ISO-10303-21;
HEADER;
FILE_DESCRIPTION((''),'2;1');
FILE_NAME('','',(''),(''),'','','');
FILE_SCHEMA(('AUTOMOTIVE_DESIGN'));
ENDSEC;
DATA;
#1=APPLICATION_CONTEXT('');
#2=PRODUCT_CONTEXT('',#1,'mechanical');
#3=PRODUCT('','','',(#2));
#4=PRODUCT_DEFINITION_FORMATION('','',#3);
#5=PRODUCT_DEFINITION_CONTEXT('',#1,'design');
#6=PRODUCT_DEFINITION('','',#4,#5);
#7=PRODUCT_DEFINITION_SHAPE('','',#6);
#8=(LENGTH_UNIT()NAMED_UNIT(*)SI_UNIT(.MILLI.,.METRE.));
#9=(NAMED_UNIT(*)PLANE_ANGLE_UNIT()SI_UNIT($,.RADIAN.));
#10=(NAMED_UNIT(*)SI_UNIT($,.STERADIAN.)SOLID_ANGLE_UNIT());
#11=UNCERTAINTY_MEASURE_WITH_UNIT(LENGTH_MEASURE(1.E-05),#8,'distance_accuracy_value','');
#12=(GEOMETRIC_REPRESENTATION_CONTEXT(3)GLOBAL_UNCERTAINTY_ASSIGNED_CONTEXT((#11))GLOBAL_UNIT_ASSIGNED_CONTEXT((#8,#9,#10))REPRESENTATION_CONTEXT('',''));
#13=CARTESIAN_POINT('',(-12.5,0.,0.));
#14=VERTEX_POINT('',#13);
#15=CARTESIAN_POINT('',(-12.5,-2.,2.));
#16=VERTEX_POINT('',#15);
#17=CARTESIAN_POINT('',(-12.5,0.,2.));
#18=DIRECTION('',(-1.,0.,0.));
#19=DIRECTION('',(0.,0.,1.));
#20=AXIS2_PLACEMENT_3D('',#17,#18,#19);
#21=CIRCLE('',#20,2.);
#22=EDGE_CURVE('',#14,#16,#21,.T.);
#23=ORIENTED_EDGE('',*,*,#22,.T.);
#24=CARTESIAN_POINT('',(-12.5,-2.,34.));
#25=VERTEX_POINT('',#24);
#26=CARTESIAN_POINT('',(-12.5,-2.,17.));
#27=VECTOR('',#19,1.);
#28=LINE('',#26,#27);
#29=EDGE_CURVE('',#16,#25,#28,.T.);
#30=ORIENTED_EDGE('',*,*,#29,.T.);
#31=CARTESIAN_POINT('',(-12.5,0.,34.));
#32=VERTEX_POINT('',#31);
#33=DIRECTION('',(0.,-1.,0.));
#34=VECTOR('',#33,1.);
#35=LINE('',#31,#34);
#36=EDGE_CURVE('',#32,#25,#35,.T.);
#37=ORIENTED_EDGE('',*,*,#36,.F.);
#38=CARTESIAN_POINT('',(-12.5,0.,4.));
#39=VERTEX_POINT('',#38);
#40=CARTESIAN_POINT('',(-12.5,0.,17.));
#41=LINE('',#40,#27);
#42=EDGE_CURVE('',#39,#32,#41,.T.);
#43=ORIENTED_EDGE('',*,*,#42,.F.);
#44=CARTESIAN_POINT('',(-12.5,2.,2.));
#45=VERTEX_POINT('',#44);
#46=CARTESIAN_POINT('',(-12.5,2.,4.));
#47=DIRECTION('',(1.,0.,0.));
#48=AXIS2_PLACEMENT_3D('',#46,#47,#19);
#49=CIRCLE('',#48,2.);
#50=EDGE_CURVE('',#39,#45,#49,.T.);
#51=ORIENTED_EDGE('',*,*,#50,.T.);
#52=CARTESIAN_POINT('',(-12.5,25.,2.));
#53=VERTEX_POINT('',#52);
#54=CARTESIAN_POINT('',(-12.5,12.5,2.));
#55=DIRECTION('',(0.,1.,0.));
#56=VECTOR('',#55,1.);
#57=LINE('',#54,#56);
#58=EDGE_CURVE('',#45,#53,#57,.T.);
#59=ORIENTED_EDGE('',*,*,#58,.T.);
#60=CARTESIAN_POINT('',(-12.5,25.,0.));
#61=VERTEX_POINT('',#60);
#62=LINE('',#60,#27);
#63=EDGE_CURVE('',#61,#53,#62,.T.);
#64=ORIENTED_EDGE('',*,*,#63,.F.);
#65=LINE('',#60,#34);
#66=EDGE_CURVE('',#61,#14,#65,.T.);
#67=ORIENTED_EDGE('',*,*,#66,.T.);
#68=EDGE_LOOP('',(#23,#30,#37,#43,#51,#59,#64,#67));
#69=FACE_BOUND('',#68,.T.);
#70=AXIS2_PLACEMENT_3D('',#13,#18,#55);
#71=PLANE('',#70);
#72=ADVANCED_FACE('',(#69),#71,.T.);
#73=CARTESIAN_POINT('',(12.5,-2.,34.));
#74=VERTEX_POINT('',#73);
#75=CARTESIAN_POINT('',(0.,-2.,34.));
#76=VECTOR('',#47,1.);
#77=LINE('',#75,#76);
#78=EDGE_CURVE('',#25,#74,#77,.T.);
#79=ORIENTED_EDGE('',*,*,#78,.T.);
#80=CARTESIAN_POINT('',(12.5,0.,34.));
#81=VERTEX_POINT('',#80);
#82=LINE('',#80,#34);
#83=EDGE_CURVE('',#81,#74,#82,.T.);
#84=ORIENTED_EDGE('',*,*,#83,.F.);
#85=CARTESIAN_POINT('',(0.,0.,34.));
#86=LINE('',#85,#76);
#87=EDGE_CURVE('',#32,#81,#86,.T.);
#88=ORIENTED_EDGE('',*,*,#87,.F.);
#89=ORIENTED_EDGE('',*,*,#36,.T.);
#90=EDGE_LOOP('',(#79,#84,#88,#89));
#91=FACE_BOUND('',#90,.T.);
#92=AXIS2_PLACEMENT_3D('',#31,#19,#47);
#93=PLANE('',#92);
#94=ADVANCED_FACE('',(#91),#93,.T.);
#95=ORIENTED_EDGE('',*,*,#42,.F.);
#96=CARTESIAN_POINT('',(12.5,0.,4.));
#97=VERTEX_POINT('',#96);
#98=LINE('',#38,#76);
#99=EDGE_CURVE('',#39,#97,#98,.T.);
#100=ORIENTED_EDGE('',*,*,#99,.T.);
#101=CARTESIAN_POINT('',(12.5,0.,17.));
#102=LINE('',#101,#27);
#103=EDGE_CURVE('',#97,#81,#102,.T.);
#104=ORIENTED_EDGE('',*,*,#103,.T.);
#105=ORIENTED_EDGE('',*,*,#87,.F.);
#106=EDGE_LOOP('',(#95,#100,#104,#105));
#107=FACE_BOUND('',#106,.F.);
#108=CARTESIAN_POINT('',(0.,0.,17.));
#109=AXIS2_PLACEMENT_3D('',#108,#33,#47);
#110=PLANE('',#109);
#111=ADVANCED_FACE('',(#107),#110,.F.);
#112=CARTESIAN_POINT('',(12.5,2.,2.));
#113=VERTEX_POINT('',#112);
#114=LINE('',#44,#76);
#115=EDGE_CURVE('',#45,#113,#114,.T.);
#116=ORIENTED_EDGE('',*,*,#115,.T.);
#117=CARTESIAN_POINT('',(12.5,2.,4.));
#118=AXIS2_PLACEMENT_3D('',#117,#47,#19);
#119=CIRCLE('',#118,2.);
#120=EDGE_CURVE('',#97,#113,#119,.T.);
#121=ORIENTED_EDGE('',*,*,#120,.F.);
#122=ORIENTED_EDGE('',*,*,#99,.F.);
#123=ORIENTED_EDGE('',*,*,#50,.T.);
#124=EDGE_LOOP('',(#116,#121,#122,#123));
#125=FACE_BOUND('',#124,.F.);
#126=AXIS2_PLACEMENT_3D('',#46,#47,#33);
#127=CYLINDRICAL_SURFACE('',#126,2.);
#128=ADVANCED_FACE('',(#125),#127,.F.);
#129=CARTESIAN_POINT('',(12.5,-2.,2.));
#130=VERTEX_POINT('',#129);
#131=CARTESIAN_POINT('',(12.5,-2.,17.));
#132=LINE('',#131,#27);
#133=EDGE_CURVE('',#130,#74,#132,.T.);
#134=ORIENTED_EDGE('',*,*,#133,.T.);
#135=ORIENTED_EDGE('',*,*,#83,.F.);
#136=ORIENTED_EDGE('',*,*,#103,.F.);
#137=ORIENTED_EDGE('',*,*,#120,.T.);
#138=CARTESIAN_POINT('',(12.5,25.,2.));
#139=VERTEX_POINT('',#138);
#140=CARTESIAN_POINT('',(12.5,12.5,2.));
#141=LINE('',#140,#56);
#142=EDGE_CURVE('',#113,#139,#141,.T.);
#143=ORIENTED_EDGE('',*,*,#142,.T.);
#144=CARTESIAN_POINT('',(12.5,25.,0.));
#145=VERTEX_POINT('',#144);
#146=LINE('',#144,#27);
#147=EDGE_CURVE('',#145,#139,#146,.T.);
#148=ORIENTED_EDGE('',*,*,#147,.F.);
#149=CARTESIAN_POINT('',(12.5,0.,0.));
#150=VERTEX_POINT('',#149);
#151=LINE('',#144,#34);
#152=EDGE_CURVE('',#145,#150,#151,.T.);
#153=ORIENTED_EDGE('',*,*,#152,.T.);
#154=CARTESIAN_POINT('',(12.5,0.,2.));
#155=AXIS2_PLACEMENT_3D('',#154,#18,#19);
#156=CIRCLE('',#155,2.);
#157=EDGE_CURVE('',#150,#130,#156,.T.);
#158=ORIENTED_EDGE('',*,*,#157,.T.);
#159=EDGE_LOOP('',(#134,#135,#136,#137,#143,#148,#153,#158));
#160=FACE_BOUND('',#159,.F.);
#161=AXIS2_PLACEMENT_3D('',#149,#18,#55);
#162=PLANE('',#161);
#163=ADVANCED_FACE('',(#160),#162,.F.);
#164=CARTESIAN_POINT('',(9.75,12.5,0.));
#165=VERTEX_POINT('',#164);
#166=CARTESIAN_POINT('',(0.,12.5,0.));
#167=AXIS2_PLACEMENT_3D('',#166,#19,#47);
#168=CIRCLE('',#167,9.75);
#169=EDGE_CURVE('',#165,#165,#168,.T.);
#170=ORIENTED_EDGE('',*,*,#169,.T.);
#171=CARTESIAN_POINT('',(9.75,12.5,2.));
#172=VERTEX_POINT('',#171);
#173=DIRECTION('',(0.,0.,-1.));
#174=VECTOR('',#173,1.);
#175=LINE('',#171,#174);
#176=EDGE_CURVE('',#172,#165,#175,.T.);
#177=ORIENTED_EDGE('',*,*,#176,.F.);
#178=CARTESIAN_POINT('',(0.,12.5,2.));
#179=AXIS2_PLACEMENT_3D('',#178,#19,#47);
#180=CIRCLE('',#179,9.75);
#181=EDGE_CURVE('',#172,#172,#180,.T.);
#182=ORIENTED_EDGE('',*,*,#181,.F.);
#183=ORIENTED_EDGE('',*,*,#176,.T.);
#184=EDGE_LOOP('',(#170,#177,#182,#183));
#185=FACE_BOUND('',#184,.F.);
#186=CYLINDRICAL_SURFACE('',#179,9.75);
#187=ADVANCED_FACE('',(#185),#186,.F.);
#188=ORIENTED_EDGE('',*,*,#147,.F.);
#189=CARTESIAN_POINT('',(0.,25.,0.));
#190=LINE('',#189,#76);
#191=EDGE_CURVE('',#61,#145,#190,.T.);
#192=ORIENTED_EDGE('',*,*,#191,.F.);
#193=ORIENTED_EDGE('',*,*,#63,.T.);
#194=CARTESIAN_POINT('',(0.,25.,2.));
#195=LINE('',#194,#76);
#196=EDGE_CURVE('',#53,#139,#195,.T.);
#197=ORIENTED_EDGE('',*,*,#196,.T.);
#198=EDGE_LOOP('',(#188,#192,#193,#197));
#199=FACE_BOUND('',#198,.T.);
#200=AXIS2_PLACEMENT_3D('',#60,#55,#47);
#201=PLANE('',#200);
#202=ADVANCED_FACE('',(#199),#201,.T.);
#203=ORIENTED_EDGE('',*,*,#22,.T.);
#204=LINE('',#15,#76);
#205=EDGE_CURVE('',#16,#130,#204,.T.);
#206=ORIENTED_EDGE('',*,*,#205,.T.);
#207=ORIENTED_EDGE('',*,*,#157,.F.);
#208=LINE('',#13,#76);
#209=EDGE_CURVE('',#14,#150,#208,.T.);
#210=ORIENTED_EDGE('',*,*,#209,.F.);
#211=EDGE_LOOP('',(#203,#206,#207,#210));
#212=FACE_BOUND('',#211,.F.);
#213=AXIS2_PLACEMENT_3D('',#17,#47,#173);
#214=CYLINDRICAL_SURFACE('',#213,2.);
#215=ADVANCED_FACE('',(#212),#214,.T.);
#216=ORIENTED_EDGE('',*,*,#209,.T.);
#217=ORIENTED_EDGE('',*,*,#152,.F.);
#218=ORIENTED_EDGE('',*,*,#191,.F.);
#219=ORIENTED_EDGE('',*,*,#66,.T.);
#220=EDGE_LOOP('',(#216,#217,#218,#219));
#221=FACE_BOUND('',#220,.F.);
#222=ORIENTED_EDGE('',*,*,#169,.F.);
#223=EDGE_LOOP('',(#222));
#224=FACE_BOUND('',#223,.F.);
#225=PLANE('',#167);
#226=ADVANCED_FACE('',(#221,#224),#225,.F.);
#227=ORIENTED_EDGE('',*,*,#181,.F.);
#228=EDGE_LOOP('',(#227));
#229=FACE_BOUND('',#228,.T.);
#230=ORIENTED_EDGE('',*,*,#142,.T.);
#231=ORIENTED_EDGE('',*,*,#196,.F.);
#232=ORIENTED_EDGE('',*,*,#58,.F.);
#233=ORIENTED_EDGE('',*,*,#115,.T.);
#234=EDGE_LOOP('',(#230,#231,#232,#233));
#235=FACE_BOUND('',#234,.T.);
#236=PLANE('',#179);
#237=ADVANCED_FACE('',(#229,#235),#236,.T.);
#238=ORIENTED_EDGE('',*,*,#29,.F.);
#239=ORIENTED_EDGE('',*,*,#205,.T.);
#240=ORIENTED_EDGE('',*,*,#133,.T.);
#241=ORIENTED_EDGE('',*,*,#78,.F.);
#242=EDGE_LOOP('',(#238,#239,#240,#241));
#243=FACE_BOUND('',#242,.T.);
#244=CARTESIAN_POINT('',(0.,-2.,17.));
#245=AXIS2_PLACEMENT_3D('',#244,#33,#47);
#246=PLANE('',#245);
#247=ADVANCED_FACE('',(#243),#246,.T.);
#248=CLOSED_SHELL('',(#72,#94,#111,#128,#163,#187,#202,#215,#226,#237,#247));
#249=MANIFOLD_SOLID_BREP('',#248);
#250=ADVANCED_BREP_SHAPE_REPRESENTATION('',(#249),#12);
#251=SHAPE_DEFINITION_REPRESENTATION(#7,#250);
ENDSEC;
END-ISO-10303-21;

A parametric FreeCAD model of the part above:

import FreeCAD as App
import Part
import Sketcher


def edges_at(feature, points):
    """Names of the edges that pass closest to the given points."""
    edges = feature.Shape.Edges
    near = lambda p: min(range(len(edges)), key=lambda i: edges[i].distToShape(Part.Vertex(*p))[0])
    return sorted({f"Edge{near(p) + 1}" for p in points})


def add_polygon(sketch, points):
    """Adds a closed chain of lines whose ends are joined by coincident constraints."""
    first, n = sketch.GeometryCount, len(points)
    for a, b in zip(points, points[1:] + points[:1]):
        sketch.addGeometry(Part.LineSegment(App.Vector(*a, 0), App.Vector(*b, 0)), False)
    for i in range(n):
        sketch.addConstraint(Sketcher.Constraint("Coincident", first + i, 2, first + (i + 1) % n, 1))

doc = App.newDocument("Part")
body = doc.addObject("PartDesign::Body", "Body")

sketch1 = body.newObject("Sketcher::SketchObject", "Sketch")
sketch1.AttachmentSupport = (doc.getObject("XZ_Plane"), [""])
sketch1.MapMode = "FlatFace"
add_polygon(sketch1, [(-12, 34), (-12, 0), (12, 0), (12, 34)])
sketch1.addConstraint(Sketcher.Constraint("Vertical", 0))
sketch1.addConstraint(Sketcher.Constraint("Horizontal", 1))
sketch1.addConstraint(Sketcher.Constraint("Vertical", 2))
sketch1.addConstraint(Sketcher.Constraint("Horizontal", 3))
sketch1.addConstraint(Sketcher.Constraint("Symmetric", 0, 2, 1, 2, -1, 1))
sketch1.addConstraint(Sketcher.Constraint("DistanceX", 1, 1, 1, 2, 25.0))
sketch1.addConstraint(Sketcher.Constraint("DistanceY", 0, 2, 0, 1, 34.0))
pad1 = body.newObject("PartDesign::Pad", "Pad")
pad1.Profile = sketch1
pad1.Length = 2

sketch2 = body.newObject("Sketcher::SketchObject", "Sketch001")
sketch2.AttachmentSupport = (doc.getObject("XY_Plane"), [""])
sketch2.MapMode = "FlatFace"
add_polygon(sketch2, [(-12, 25), (-12, 0), (12, 0), (12, 25)])
sketch2.addConstraint(Sketcher.Constraint("Vertical", 0))
sketch2.addConstraint(Sketcher.Constraint("Horizontal", 1))
sketch2.addConstraint(Sketcher.Constraint("Vertical", 2))
sketch2.addConstraint(Sketcher.Constraint("Horizontal", 3))
sketch2.addConstraint(Sketcher.Constraint("Symmetric", 0, 2, 1, 2, -1, 1))
sketch2.addConstraint(Sketcher.Constraint("Equal", 3, 0))
sketch2.addConstraint(Sketcher.Constraint("DistanceX", 1, 1, 1, 2, 25.0))
pad2 = body.newObject("PartDesign::Pad", "Pad001")
pad2.Profile = sketch2
pad2.Length = 2

sketch3 = body.newObject("Sketcher::SketchObject", "Sketch002")
sketch3.AttachmentSupport = (doc.getObject("XY_Plane"), [""])
sketch3.MapMode = "FlatFace"
sketch3.AttachmentOffset = App.Placement(App.Vector(0, 0, 2), App.Rotation())
sketch3.addGeometry(Part.Circle(App.Vector(0, 12, 0), App.Vector(0, 0, 1), 10), False)
sketch3.addConstraint(Sketcher.Constraint("PointOnObject", 0, 3, -2))
sketch3.addConstraint(Sketcher.Constraint("Diameter", 0, 19.5))
sketch3.addConstraint(Sketcher.Constraint("DistanceY", -1, 1, 0, 3, 12.5))
pocket1 = body.newObject("PartDesign::Pocket", "Pocket")
pocket1.Profile = sketch3
pocket1.Type = "ThroughAll"
doc.recompute()

fillet = body.newObject("PartDesign::Fillet", "Fillet")
fillet.Base = (pocket1, edges_at(pocket1, [(0, -2, 0), (0, 0, 2)]))
fillet.Radius = 2

doc.recompute()
